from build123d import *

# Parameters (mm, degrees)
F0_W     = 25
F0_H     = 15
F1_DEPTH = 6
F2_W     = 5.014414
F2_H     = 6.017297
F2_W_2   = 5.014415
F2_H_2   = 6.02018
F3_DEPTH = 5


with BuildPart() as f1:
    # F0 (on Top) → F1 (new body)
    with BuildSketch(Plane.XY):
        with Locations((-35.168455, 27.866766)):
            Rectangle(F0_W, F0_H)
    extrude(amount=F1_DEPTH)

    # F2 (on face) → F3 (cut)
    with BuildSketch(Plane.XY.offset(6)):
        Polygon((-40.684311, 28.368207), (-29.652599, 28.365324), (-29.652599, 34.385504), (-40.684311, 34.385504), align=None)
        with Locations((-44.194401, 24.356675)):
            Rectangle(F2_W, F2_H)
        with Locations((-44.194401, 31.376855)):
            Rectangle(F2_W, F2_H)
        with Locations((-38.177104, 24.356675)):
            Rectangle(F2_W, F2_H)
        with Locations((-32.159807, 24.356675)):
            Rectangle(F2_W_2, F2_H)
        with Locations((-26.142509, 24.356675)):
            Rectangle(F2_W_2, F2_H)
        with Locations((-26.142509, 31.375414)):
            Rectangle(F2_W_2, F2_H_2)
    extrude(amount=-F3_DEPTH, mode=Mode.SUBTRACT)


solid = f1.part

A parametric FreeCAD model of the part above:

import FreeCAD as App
import Part
import Sketcher
Q = App.Units.Quantity


def add_polygon(sketch, points):
    """Adds a closed chain of lines whose ends are joined by coincident constraints."""
    first, n = sketch.GeometryCount, len(points)
    for a, b in zip(points, points[1:] + points[:1]):
        sketch.addGeometry(Part.LineSegment(App.Vector(*a, 0), App.Vector(*b, 0)), False)
    for i in range(n):
        sketch.addConstraint(Sketcher.Constraint("Coincident", first + i, 2, first + (i + 1) % n, 1))

doc = App.newDocument("Part")
body = doc.addObject("PartDesign::Body", "Body")

sketch1 = doc.addObject("Sketcher::SketchObject", "Sketch")
body.addObject(sketch1)
sketch1.AttachmentSupport = (doc.XY_Plane, [""])
sketch1.MapMode = "FlatFace"
add_polygon(sketch1, [(-47.668455, 35.366766), (-47.668455, 20.366766), (-22.668455, 20.366766), (-22.668455, 35.366766)])
sketch1.addConstraint(Sketcher.Constraint("Vertical", 0))
sketch1.addConstraint(Sketcher.Constraint("Horizontal", 1))
sketch1.addConstraint(Sketcher.Constraint("Vertical", 2))
sketch1.addConstraint(Sketcher.Constraint("Horizontal", 3))
sketch1.addConstraint(Sketcher.Constraint("DistanceX", 1, 1, 1, 2, Q("25 mm")))
sketch1.addConstraint(Sketcher.Constraint("DistanceY", 0, 2, 0, 1, Q("15 mm")))
sketch1.addConstraint(Sketcher.Constraint("DistanceX", 0, 2, -1, 1, Q("47.668455 mm")))
sketch1.addConstraint(Sketcher.Constraint("DistanceY", -1, 1, 0, 2, Q("20.366766 mm")))
pad1 = doc.addObject("PartDesign::Pad", "Pad")
body.addObject(pad1)
pad1.Profile = sketch1
pad1.Length = 6

sketch2 = doc.addObject("Sketcher::SketchObject", "Sketch001")
body.addObject(sketch2)
sketch2.AttachmentSupport = (doc.XY_Plane, [""])
sketch2.MapMode = "FlatFace"
sketch2.AttachmentOffset = App.Placement(App.Vector(0, 0, 6), App.Rotation())
add_polygon(sketch2, [(-40.684311, 28.368207), (-29.652599, 28.365324), (-29.652599, 34.385504), (-40.684311, 34.385504)])
add_polygon(sketch2, [(-46.701608, 27.365323), (-46.701608, 21.348026), (-41.687194, 21.348026), (-41.687194, 27.365323)])
add_polygon(sketch2, [(-46.701608, 34.385503), (-46.701608, 28.368206), (-41.687194, 28.368206), (-41.687194, 34.385503)])
add_polygon(sketch2, [(-40.684311, 27.365323), (-40.684311, 21.348026), (-35.669897, 21.348026), (-35.669897, 27.365323)])
add_polygon(sketch2, [(-34.667015, 27.365323), (-34.667015, 21.348026), (-29.6526, 21.348026), (-29.6526, 27.365323)])
add_polygon(sketch2, [(-28.649717, 27.365323), (-28.649717, 21.348026), (-23.635302, 21.348026), (-23.635302, 27.365323)])
add_polygon(sketch2, [(-28.649717, 34.385504), (-28.649717, 28.365324), (-23.635302, 28.365324), (-23.635302, 34.385504)])
sketch2.addConstraint(Sketcher.Constraint("Vertical", 1))
sketch2.addConstraint(Sketcher.Constraint("Horizontal", 2))
sketch2.addConstraint(Sketcher.Constraint("Vertical", 3))
sketch2.addConstraint(Sketcher.Constraint("Vertical", 4))
sketch2.addConstraint(Sketcher.Constraint("Horizontal", 5))
sketch2.addConstraint(Sketcher.Constraint("Vertical", 6))
sketch2.addConstraint(Sketcher.Constraint("Horizontal", 7))
sketch2.addConstraint(Sketcher.Constraint("Vertical", 8))
sketch2.addConstraint(Sketcher.Constraint("Horizontal", 9))
sketch2.addConstraint(Sketcher.Constraint("Vertical", 10))
sketch2.addConstraint(Sketcher.Constraint("Horizontal", 11))
sketch2.addConstraint(Sketcher.Constraint("Vertical", 12))
sketch2.addConstraint(Sketcher.Constraint("Horizontal", 13))
sketch2.addConstraint(Sketcher.Constraint("Vertical", 14))
sketch2.addConstraint(Sketcher.Constraint("Horizontal", 15))
sketch2.addConstraint(Sketcher.Constraint("Vertical", 16))
sketch2.addConstraint(Sketcher.Constraint("Horizontal", 17))
sketch2.addConstraint(Sketcher.Constraint("Vertical", 18))
sketch2.addConstraint(Sketcher.Constraint("Horizontal", 19))
sketch2.addConstraint(Sketcher.Constraint("Vertical", 20))
sketch2.addConstraint(Sketcher.Constraint("Horizontal", 21))
sketch2.addConstraint(Sketcher.Constraint("Vertical", 22))
sketch2.addConstraint(Sketcher.Constraint("Horizontal", 23))
sketch2.addConstraint(Sketcher.Constraint("Vertical", 24))
sketch2.addConstraint(Sketcher.Constraint("Horizontal", 25))
sketch2.addConstraint(Sketcher.Constraint("Vertical", 26))
sketch2.addConstraint(Sketcher.Constraint("Horizontal", 27))
sketch2.addConstraint(Sketcher.Constraint("Horizontal", 3, 2, 8, 2))
sketch2.addConstraint(Sketcher.Constraint("Horizontal", 2, 2, 10, 2))
sketch2.addConstraint(Sketcher.Constraint("Horizontal", 5, 2, 12, 2))
sketch2.addConstraint(Sketcher.Constraint("Horizontal", 7, 2, 14, 2))
sketch2.addConstraint(Sketcher.Constraint("Horizontal", 13, 2, 16, 2))
sketch2.addConstraint(Sketcher.Constraint("Horizontal", 15, 2, 18, 2))
sketch2.addConstraint(Sketcher.Constraint("Horizontal", 17, 2, 20, 2))
sketch2.addConstraint(Sketcher.Constraint("Horizontal", 19, 2, 22, 2))
sketch2.addConstraint(Sketcher.Constraint("Horizontal", 0, 2, 24, 2))
sketch2.addConstraint(Sketcher.Constraint("Horizontal", 11, 2, 26, 2))
sketch2.addConstraint(Sketcher.Constraint("Vertical", 7, 2, 8, 2))
sketch2.addConstraint(Sketcher.Constraint("Vertical", 6, 2, 9, 2))
sketch2.addConstraint(Sketcher.Constraint("Vertical", 3, 2, 12, 2))
sketch2.addConstraint(Sketcher.Constraint("Vertical", 1, 2, 17, 2))
sketch2.addConstraint(Sketcher.Constraint("Vertical", 23, 2, 24, 2))
sketch2.addConstraint(Sketcher.Constraint("Vertical", 22, 2, 25, 2))
sketch2.addConstraint(Sketcher.Constraint("Equal", 11, 13))
sketch2.addConstraint(Sketcher.Constraint("Equal", 15, 17))
sketch2.addConstraint(Sketcher.Constraint("Equal", 19, 21))
sketch2.addConstraint(Sketcher.Constraint("Equal", 3, 4))
sketch2.addConstraint(Sketcher.Constraint("DistanceY", 6, 2, 0, 2, Q("1.000001 mm")))
sketch2.addConstraint(Sketcher.Constraint("DistanceY", 1, 1, 1, 2, Q("6.02018 mm")))
sketch2.addConstraint(Sketcher.Constraint("DistanceX", 0, 2, -1, 1, Q("29.652599 mm")))
sketch2.addConstraint(Sketcher.Constraint("DistanceX", 21, 2, -1, 1, Q("23.635302 mm")))
sketch2.addConstraint(Sketcher.Constraint("DistanceX", 13, 2, 0, 2, Q("6.017298 mm")))
sketch2.addConstraint(Sketcher.Constraint("DistanceX", 2, 2, 2, 1, Q("11.031712 mm")))
sketch2.addConstraint(Sketcher.Constraint("DistanceY", 3, 2, 3, 1, Q("6.017297 mm")))
sketch2.addConstraint(Sketcher.Constraint("DistanceX", 4, 2, 0, 2, Q("17.049009 mm")))
sketch2.addConstraint(Sketcher.Constraint("DistanceY", -1, 1, 0, 2, Q("28.365324 mm")))
pocket1 = doc.addObject("PartDesign::Pocket", "Pocket")
body.addObject(pocket1)
pocket1.Profile = sketch2
pocket1.Length = 5

doc.recompute()
